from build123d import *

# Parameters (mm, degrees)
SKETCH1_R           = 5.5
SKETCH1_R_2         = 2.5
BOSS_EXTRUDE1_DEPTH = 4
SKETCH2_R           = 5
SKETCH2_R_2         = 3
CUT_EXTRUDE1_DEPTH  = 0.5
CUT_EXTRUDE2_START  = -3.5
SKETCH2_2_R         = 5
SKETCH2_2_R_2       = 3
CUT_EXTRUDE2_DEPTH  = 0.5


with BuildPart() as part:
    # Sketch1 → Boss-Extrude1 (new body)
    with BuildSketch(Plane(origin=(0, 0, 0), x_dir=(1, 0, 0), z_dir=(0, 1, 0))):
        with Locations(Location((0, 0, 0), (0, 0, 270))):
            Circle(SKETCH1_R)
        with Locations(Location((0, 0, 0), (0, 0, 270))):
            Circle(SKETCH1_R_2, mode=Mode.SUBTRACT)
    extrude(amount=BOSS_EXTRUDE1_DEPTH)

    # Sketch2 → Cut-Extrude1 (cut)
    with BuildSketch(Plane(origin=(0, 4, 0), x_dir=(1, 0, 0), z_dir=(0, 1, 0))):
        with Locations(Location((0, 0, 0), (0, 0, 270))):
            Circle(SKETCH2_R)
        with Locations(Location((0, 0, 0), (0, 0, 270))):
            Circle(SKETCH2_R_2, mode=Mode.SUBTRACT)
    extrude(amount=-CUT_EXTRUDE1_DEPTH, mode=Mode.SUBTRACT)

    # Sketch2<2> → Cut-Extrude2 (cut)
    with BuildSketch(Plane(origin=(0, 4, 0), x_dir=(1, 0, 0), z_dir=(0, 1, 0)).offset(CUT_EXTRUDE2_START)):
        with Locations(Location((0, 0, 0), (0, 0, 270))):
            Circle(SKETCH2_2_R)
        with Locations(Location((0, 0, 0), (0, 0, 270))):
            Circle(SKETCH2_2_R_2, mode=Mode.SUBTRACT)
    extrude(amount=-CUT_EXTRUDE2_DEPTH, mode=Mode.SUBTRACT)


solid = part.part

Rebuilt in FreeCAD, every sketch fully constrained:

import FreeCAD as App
import Part
import Sketcher
from FreeCAD import Vector
Q = App.Units.Quantity

doc = App.newDocument("Part")
body = doc.addObject("PartDesign::Body", "Body")

# Sketch on XZ plane
sketch1 = body.newObject("Sketcher::SketchObject", "Sketch")
sketch1.AttachmentSupport = (doc.getObject("XZ_Plane"), [""])
sketch1.MapMode = "FlatFace"
sketch1.addGeometry([
    Part.Circle(Vector(0, 0, 0), Vector(0, 0, 1), 5.5),
    Part.Circle(Vector(0, 0, 0), Vector(0, 0, 1), 2.5),
], False)
sketch1.addConstraint([
    Sketcher.Constraint("Coincident", 0, 3, -1, 1),
    Sketcher.Constraint("Coincident", 1, 3, -1, 1),
    Sketcher.Constraint("Diameter", 0, Q("11 mm")),
    Sketcher.Constraint("Diameter", 1, Q("5 mm")),
])
pad1 = body.newObject("PartDesign::Pad", "Pad")
pad1.Profile = sketch1
pad1.Length = 4
pad1.Reversed = True

# Sketch on XZ plane
sketch2 = body.newObject("Sketcher::SketchObject", "Sketch001")
sketch2.AttachmentSupport = (doc.getObject("XZ_Plane"), [""])
sketch2.MapMode = "FlatFace"
sketch2.AttachmentOffset = App.Placement(Vector(0, 0, -4), App.Rotation())
sketch2.addGeometry([
    Part.Circle(Vector(0, 0, 0), Vector(0, 0, 1), 5),
    Part.Circle(Vector(0, 0, 0), Vector(0, 0, 1), 3),
], False)
sketch2.addConstraint([
    Sketcher.Constraint("Coincident", 0, 3, -1, 1),
    Sketcher.Constraint("Coincident", 1, 3, -1, 1),
    Sketcher.Constraint("Diameter", 0, Q("10 mm")),
    Sketcher.Constraint("Diameter", 1, Q("6 mm")),
])
pocket1 = body.newObject("PartDesign::Pocket", "Pocket")
pocket1.Profile = sketch2
pocket1.Length = 0.5
pocket1.Reversed = True

# Sketch on XZ plane
sketch3 = body.newObject("Sketcher::SketchObject", "Sketch002")
sketch3.AttachmentSupport = (doc.getObject("XZ_Plane"), [""])
sketch3.MapMode = "FlatFace"
sketch3.AttachmentOffset = App.Placement(Vector(0, 0, -0.5), App.Rotation())
sketch3.addGeometry([
    Part.Circle(Vector(0, 0, 0), Vector(0, 0, 1), 5),
    Part.Circle(Vector(0, 0, 0), Vector(0, 0, 1), 3),
], False)
sketch3.addConstraint([
    Sketcher.Constraint("Coincident", 0, 3, -1, 1),
    Sketcher.Constraint("Coincident", 1, 3, -1, 1),
    Sketcher.Constraint("Diameter", 0, Q("10 mm")),
    Sketcher.Constraint("Diameter", 1, Q("6 mm")),
])
pocket2 = body.newObject("PartDesign::Pocket", "Pocket001")
pocket2.Profile = sketch3
pocket2.Length = 0.5
pocket2.Reversed = True

doc.recompute()
